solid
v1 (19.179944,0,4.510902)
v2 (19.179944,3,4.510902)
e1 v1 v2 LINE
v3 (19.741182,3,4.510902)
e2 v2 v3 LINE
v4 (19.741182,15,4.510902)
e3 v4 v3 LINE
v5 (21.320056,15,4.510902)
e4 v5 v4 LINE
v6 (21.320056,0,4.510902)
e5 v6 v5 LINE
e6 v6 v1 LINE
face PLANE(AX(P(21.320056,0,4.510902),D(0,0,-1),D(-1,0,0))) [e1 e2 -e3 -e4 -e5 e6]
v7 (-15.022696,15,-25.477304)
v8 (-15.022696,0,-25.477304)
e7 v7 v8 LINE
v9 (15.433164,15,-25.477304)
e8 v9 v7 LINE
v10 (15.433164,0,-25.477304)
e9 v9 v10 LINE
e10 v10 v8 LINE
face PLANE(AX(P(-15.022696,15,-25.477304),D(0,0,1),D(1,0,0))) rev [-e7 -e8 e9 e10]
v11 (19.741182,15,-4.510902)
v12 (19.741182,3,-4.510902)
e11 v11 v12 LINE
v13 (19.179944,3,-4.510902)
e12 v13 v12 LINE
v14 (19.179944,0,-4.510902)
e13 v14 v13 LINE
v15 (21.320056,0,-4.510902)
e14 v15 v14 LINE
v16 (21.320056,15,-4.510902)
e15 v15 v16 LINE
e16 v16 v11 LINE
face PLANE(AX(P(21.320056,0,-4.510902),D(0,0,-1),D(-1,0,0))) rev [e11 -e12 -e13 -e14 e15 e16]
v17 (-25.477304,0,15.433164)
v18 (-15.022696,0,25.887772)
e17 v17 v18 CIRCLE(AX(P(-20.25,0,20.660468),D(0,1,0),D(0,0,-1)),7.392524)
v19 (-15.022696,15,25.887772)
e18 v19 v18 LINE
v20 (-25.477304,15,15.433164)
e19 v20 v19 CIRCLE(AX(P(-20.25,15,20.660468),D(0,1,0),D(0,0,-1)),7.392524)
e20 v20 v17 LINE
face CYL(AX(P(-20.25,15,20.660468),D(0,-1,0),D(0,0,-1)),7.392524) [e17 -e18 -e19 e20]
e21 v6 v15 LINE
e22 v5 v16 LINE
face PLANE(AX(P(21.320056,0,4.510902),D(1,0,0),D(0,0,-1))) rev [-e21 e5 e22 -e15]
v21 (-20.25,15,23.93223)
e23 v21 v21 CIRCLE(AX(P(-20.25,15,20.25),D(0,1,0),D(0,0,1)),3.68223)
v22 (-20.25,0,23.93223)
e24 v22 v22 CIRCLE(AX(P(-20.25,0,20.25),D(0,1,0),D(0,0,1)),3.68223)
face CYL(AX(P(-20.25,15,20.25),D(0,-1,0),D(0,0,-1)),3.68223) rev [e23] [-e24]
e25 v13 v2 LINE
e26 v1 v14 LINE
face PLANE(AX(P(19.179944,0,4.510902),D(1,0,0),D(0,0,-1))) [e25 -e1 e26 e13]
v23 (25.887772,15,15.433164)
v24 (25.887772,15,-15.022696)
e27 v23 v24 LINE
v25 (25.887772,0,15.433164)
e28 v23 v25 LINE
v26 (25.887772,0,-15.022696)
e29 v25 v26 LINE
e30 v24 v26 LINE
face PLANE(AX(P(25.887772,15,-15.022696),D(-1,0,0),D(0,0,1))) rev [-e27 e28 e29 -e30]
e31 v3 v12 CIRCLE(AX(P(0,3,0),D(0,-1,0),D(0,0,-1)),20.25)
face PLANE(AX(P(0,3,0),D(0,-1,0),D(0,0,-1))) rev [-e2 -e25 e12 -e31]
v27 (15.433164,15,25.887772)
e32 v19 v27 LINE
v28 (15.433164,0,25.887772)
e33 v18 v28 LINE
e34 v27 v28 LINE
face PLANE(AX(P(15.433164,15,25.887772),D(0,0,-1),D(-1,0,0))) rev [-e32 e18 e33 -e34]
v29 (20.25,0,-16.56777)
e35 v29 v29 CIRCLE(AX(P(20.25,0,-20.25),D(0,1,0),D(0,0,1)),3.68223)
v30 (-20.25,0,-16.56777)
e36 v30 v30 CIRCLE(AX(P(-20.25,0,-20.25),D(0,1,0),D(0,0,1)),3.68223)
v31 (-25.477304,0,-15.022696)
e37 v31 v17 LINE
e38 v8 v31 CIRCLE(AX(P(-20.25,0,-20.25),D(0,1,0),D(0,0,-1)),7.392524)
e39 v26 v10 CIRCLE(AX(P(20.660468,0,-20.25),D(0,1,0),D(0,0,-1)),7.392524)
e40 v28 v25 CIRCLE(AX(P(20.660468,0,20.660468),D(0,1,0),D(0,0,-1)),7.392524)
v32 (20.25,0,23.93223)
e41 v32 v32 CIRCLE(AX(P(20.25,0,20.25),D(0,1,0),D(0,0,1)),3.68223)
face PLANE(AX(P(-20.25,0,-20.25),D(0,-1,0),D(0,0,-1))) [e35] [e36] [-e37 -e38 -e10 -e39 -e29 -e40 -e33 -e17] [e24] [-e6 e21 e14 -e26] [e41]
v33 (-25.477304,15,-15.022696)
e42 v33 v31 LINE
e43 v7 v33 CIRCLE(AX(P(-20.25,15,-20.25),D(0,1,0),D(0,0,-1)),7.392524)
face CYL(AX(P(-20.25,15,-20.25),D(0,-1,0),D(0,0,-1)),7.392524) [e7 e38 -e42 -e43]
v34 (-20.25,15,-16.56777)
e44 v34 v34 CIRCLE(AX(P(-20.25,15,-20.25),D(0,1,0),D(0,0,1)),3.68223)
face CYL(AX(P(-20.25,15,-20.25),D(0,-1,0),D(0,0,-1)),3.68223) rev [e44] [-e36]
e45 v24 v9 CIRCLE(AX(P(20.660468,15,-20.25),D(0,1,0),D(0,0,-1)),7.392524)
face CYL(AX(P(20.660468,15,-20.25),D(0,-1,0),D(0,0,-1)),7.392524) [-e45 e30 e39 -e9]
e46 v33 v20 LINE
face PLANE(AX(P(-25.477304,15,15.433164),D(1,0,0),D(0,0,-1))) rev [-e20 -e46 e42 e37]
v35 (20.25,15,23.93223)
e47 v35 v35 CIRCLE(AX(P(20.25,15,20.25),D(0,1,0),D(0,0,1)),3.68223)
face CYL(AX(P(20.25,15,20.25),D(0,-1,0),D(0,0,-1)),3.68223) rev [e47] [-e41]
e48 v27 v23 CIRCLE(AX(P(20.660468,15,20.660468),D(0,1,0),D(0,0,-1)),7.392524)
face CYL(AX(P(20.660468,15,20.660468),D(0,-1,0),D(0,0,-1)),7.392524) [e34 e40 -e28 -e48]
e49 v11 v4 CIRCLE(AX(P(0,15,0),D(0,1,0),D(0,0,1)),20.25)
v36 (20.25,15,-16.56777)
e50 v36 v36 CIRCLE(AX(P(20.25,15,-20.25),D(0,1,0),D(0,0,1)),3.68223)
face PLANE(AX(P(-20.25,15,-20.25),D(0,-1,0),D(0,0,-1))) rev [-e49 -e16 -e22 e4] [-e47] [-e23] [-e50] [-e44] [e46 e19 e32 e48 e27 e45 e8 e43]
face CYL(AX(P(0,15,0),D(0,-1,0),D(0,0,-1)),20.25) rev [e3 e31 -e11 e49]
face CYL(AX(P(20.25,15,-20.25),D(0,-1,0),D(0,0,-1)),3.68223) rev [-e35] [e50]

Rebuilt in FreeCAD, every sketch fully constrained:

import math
import FreeCAD as App
import Part
import Sketcher
Q = App.Units.Quantity


def add_polygon(sketch, points):
    """Adds a closed chain of lines whose ends are joined by coincident constraints."""
    first, n = sketch.GeometryCount, len(points)
    for a, b in zip(points, points[1:] + points[:1]):
        sketch.addGeometry(Part.LineSegment(App.Vector(*a, 0), App.Vector(*b, 0)), False)
    for i in range(n):
        sketch.addConstraint(Sketcher.Constraint("Coincident", first + i, 2, first + (i + 1) % n, 1))

doc = App.newDocument("Part")
body = doc.addObject("PartDesign::Body", "Body")

sketch1 = body.newObject("Sketcher::SketchObject", "Sketch")
sketch1.AttachmentSupport = (doc.getObject("XZ_Plane"), [""])
sketch1.MapMode = "FlatFace"
sketch1.addGeometry([
    Part.LineSegment(App.Vector(-25.5, -15, 0), App.Vector(-25.5, 15.4, 0)),
    Part.ArcOfCircle(Part.Circle(App.Vector(-20.2, 20.7, 0), App.Vector(0, 0, 1), 7.4), math.radians(45), math.radians(225)),
    Part.LineSegment(App.Vector(-15, 25.9, 0), App.Vector(15.4, 25.9, 0)),
    Part.ArcOfCircle(Part.Circle(App.Vector(20.7, 20.7, 0), App.Vector(0, 0, 1), 7.4), math.radians(-45), math.radians(135)),
    Part.LineSegment(App.Vector(25.9, 15.4, 0), App.Vector(25.9, -15, 0)),
    Part.ArcOfCircle(Part.Circle(App.Vector(20.7, -20.2, 0), App.Vector(0, 0, 1), 7.4), math.radians(-135), math.radians(45)),
    Part.LineSegment(App.Vector(15.4, -25.5, 0), App.Vector(-15, -25.5, 0)),
    Part.ArcOfCircle(Part.Circle(App.Vector(-20.2, -20.2, 0), App.Vector(0, 0, 1), 7.4), math.radians(135), math.radians(315)),
    Part.Circle(App.Vector(20.2, 20.2, 0), App.Vector(0, 0, 1), 3.7),
    Part.Circle(App.Vector(-20.2, 20.2, 0), App.Vector(0, 0, 1), 3.7),
    Part.Circle(App.Vector(20.2, -20.2, 0), App.Vector(0, 0, 1), 3.7),
    Part.Circle(App.Vector(0, 0, 0), App.Vector(0, 0, 1), 20.2),
    Part.Circle(App.Vector(-20.2, -20.2, 0), App.Vector(0, 0, 1), 3.7),
], False)
sketch1.addConstraint([
    Sketcher.Constraint("Coincident", 0, 2, 1, 2),
    Sketcher.Constraint("Coincident", 1, 1, 2, 1),
    Sketcher.Constraint("Coincident", 2, 2, 3, 2),
    Sketcher.Constraint("Coincident", 3, 1, 4, 1),
    Sketcher.Constraint("Coincident", 4, 2, 5, 2),
    Sketcher.Constraint("Coincident", 5, 1, 6, 1),
    Sketcher.Constraint("Coincident", 6, 2, 7, 2),
    Sketcher.Constraint("Coincident", 7, 1, 0, 1),
    Sketcher.Constraint("Vertical", 0),
    Sketcher.Constraint("Horizontal", 2),
    Sketcher.Constraint("Vertical", 4),
    Sketcher.Constraint("Horizontal", 6),
    Sketcher.Constraint("Coincident", 11, 3, -1, 1),
    Sketcher.Constraint("Coincident", 12, 3, 7, 3),
    Sketcher.Constraint("Equal", 1, 3),
    Sketcher.Constraint("Equal", 3, 5),
    Sketcher.Constraint("Equal", 5, 7),
    Sketcher.Constraint("Equal", 8, 9),
    Sketcher.Constraint("Equal", 9, 10),
    Sketcher.Constraint("Equal", 10, 12),
    Sketcher.Constraint("Symmetric", 7, 3, 8, 3, -1, 1),
    Sketcher.Constraint("Symmetric", 9, 3, 10, 3, -1, 1),
    Sketcher.Constraint("Symmetric", 8, 3, 9, 3, -2),
    Sketcher.Constraint("Horizontal", 1, 3, 3, 3),
    Sketcher.Constraint("Horizontal", 5, 3, 7, 3),
    Sketcher.Constraint("Horizontal", 0, 2, 3, 1),
    Sketcher.Constraint("Horizontal", 4, 2, 7, 1),
    Sketcher.Constraint("Vertical", 3, 3, 5, 3),
    Sketcher.Constraint("Vertical", 2, 2, 5, 1),
    Sketcher.Constraint("Equal", 6, 0),
    Sketcher.Constraint("Diameter", 11, Q("40.5 mm")),
    Sketcher.Constraint("DistanceX", 1, 3, 8, 3, Q("40.5 mm")),
    Sketcher.Constraint("DistanceY", 5, 3, 8, 3, Q("40.5 mm")),
    Sketcher.Constraint("Diameter", 8, Q("7.364459 mm")),
    Sketcher.Constraint("Radius", 1, Q("7.392524 mm")),
    Sketcher.Constraint("DistanceX", 2, 1, 2, 2, Q("30.45586 mm")),
    Sketcher.Constraint("DistanceY", -1, 1, 1, 3, Q("20.660468 mm")),
    Sketcher.Constraint("DistanceX", -1, 1, 3, 3, Q("20.660468 mm")),
])
pad1 = body.newObject("PartDesign::Pad", "Pad")
pad1.Profile = sketch1
pad1.Length = 15
pad1.Reversed = True

sketch2 = body.newObject("Sketcher::SketchObject", "Sketch001")
sketch2.AttachmentSupport = (doc.getObject("XZ_Plane"), [""])
sketch2.MapMode = "FlatFace"
sketch2.addGeometry(Part.Circle(App.Vector(0, 0, 0), App.Vector(0, 0, 1), 20), False)
sketch2.addConstraint([
    Sketcher.Constraint("Coincident", 0, 3, -1, 1),
    Sketcher.Constraint("Diameter", 0, Q("40.5 mm")),
])
pad2 = body.newObject("PartDesign::Pad", "Pad001")
pad2.Profile = sketch2
pad2.Length = 3
pad2.Reversed = True

sketch3 = body.newObject("Sketcher::SketchObject", "Sketch002")
sketch3.AttachmentSupport = (doc.getObject("XZ_Plane"), [""])
sketch3.MapMode = "FlatFace"
sketch3.AttachmentOffset = App.Placement(App.Vector(0, 0, -3), App.Rotation())
add_polygon(sketch3, [(19.2, -4.5), (19.2, 4.5), (21.3, 4.5), (21.3, -4.5)])
sketch3.addConstraint([
    Sketcher.Constraint("Vertical", 0),
    Sketcher.Constraint("Horizontal", 1),
    Sketcher.Constraint("Vertical", 2),
    Sketcher.Constraint("Horizontal", 3),
    Sketcher.Constraint("DistanceX", 1, 1, 1, 2, Q("2.140112 mm")),
    Sketcher.Constraint("DistanceY", 0, 1, 0, 2, Q("9.021805 mm")),
    Sketcher.Constraint("DistanceX", -1, 1, 0, 2, Q("19.179944 mm")),
    Sketcher.Constraint("DistanceY", -1, 1, 0, 2, Q("4.510902 mm")),
])
pocket1 = body.newObject("PartDesign::Pocket", "Pocket")
pocket1.Profile = sketch3
pocket1.Type = "ThroughAll"
pocket1.Midplane = True

doc.recompute()
